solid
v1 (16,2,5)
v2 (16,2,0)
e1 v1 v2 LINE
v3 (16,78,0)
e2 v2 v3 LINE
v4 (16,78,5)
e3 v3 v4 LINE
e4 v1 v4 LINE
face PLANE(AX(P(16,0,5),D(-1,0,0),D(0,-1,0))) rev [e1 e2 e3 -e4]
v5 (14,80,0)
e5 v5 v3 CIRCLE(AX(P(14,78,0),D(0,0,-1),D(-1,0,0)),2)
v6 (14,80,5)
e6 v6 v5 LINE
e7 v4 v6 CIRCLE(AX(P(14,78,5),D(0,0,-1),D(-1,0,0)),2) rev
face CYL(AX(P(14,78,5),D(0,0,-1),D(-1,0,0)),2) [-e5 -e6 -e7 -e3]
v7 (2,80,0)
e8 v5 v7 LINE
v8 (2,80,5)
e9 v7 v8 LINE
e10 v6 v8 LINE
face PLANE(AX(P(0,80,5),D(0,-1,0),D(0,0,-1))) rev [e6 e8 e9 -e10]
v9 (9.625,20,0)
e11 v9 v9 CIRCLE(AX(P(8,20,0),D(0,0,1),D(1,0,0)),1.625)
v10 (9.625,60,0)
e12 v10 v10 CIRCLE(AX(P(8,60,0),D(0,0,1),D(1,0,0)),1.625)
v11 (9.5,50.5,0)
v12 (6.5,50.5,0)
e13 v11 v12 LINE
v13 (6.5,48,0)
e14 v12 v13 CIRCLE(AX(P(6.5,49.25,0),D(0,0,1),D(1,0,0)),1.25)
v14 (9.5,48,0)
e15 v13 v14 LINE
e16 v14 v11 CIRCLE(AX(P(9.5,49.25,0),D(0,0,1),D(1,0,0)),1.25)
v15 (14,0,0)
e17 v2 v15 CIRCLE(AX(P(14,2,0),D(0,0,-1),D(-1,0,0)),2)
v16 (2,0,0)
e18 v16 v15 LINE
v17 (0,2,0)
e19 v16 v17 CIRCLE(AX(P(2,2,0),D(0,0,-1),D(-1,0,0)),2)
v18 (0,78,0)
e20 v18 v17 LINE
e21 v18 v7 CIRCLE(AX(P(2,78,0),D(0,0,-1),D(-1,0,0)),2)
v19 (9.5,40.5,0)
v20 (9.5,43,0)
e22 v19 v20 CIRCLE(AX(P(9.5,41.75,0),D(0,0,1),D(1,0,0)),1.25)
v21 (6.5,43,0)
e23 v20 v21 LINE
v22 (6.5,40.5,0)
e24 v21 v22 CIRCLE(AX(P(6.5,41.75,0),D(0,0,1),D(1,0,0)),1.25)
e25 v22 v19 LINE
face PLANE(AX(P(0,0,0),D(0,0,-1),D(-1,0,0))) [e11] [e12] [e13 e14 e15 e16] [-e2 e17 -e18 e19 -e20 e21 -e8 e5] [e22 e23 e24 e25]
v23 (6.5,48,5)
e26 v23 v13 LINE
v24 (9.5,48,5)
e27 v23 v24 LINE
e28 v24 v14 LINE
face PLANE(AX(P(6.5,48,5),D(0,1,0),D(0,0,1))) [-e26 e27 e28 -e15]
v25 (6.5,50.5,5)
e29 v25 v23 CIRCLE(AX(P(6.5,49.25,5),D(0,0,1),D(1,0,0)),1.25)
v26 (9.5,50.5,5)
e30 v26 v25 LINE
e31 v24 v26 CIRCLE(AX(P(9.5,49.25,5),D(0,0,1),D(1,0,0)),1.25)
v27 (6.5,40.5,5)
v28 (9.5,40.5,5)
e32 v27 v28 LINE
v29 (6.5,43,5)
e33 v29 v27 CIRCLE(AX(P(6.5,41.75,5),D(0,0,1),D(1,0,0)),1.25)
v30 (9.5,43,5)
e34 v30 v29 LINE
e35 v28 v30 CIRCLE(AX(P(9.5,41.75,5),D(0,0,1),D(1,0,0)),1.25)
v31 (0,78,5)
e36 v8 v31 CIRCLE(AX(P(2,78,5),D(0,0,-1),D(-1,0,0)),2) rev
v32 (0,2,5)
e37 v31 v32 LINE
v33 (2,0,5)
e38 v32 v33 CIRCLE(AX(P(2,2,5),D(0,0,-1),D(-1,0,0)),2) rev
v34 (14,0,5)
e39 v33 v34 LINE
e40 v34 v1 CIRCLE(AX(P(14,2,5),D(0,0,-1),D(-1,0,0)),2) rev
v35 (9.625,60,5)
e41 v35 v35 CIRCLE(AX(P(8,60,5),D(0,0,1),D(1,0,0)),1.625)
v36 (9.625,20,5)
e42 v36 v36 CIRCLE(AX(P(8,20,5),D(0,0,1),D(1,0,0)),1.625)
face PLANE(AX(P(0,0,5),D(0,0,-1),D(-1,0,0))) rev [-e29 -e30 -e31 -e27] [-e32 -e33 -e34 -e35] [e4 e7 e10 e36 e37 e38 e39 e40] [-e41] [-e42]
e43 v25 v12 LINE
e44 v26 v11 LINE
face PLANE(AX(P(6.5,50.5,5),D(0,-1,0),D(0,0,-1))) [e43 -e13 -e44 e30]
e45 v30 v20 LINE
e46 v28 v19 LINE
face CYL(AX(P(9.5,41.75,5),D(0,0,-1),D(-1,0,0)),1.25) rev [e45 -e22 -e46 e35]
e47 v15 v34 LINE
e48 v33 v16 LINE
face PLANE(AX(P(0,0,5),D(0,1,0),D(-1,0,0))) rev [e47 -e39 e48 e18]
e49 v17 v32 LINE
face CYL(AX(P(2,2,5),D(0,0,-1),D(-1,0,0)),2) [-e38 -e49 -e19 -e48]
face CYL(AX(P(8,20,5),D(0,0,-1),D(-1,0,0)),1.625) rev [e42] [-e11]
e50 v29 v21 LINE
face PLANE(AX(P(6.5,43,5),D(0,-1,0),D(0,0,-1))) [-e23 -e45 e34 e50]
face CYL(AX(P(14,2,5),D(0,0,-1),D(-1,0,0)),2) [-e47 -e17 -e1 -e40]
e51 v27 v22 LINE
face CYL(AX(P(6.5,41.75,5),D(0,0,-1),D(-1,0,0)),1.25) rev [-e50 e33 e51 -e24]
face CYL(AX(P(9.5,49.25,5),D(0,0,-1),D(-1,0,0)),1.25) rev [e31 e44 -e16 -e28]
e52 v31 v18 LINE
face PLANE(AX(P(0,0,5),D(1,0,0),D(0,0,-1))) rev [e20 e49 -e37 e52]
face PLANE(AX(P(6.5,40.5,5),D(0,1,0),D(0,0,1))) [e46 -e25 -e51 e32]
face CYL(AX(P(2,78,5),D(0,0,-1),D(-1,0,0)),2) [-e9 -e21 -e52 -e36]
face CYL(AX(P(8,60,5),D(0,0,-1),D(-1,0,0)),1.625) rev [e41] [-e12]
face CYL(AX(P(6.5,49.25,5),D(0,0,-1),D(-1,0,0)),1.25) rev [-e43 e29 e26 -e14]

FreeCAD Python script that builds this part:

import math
import FreeCAD as App
import Part
import Sketcher
from FreeCAD import Vector


def edges_at(feature, points):
    """Names of the edges that pass closest to the given points."""
    edges = feature.Shape.Edges
    near = lambda p: min(range(len(edges)), key=lambda i: edges[i].distToShape(Part.Vertex(*p))[0])
    return sorted({f"Edge{near(p) + 1}" for p in points})

doc = App.newDocument("Part")
params = doc.addObject("Spreadsheet::Sheet", "Params")
for row, (alias, value) in enumerate([
    ("sketch1_diameter", "3.25 mm"),
    ("sketch1_width", "16 mm"),
    ("sketch1_width2", "3 mm"),
    ("sketch1_height", "80 mm"),
    ("sketch1_radius", "1.25 mm"),
    ("pad1_length", "5 mm"),
    ("fillet_radius", "2 mm"),
], start=1):
    params.set(f"A{row}", alias)
    params.set(f"B{row}", "=" + value)
    params.setAlias(f"B{row}", alias)

body = doc.addObject("PartDesign::Body", "Body")

# Sketch on XY plane
sketch1 = doc.addObject("Sketcher::SketchObject", "Sketch")
body.addObject(sketch1)
sketch1.AttachmentSupport = (doc.XY_Plane, [""])
sketch1.MapMode = "FlatFace"
sketch1.addGeometry(Part.LineSegment(Vector(0, 80, 0), Vector(0, 0, 0)), False)
sketch1.addGeometry(Part.LineSegment(Vector(0, 0, 0), Vector(16, 0, 0)), False)
sketch1.addGeometry(Part.LineSegment(Vector(16, 0, 0), Vector(16, 80, 0)), False)
sketch1.addGeometry(Part.LineSegment(Vector(16, 80, 0), Vector(0, 80, 0)), False)
sketch1.addGeometry(Part.Circle(Vector(8, 20, 0), Vector(0, 0, 1), 1.625), False)
sketch1.addGeometry(Part.ArcOfCircle(Part.Circle(Vector(6.5, 41.75, 0), Vector(0, 0, 1), 1.25), math.radians(90), math.radians(270)), False)
sketch1.addGeometry(Part.LineSegment(Vector(6.5, 43, 0), Vector(9.5, 43, 0)), False)
sketch1.addGeometry(Part.ArcOfCircle(Part.Circle(Vector(9.5, 41.75, 0), Vector(0, 0, 1), 1.25), math.radians(-90), math.radians(90)), False)
sketch1.addGeometry(Part.LineSegment(Vector(9.5, 40.5, 0), Vector(6.5, 40.5, 0)), False)
sketch1.addGeometry(Part.ArcOfCircle(Part.Circle(Vector(6.5, 49.25, 0), Vector(0, 0, 1), 1.25), math.radians(90), math.radians(270)), False)
sketch1.addGeometry(Part.LineSegment(Vector(6.5, 50.5, 0), Vector(9.5, 50.5, 0)), False)
sketch1.addGeometry(Part.ArcOfCircle(Part.Circle(Vector(9.5, 49.25, 0), Vector(0, 0, 1), 1.25), math.radians(-90), math.radians(90)), False)
sketch1.addGeometry(Part.LineSegment(Vector(9.5, 48, 0), Vector(6.5, 48, 0)), False)
sketch1.addGeometry(Part.Circle(Vector(8, 60, 0), Vector(0, 0, 1), 1.625), False)
sketch1.addConstraint(Sketcher.Constraint("Coincident", 0, 2, 1, 1))
sketch1.addConstraint(Sketcher.Constraint("Coincident", 1, 2, 2, 1))
sketch1.addConstraint(Sketcher.Constraint("Coincident", 2, 2, 3, 1))
sketch1.addConstraint(Sketcher.Constraint("Coincident", 3, 2, 0, 1))
sketch1.addConstraint(Sketcher.Constraint("Tangent", 5, 1, 6, 1))
sketch1.addConstraint(Sketcher.Constraint("Tangent", 6, 2, 7, 2))
sketch1.addConstraint(Sketcher.Constraint("Tangent", 7, 1, 8, 1))
sketch1.addConstraint(Sketcher.Constraint("Tangent", 8, 2, 5, 2))
sketch1.addConstraint(Sketcher.Constraint("Tangent", 9, 1, 10, 1))
sketch1.addConstraint(Sketcher.Constraint("Tangent", 10, 2, 11, 2))
sketch1.addConstraint(Sketcher.Constraint("Tangent", 11, 1, 12, 1))
sketch1.addConstraint(Sketcher.Constraint("Tangent", 12, 2, 9, 2))
sketch1.addConstraint(Sketcher.Constraint("Vertical", 0))
sketch1.addConstraint(Sketcher.Constraint("Horizontal", 1))
sketch1.addConstraint(Sketcher.Constraint("Vertical", 2))
sketch1.addConstraint(Sketcher.Constraint("Horizontal", 3))
sketch1.addConstraint(Sketcher.Constraint("Horizontal", 6))
sketch1.addConstraint(Sketcher.Constraint("Horizontal", 8))
sketch1.addConstraint(Sketcher.Constraint("Horizontal", 10))
sketch1.addConstraint(Sketcher.Constraint("Horizontal", 12))
sketch1.addConstraint(Sketcher.Constraint("Coincident", 0, 2, -1, 1))
sketch1.addConstraint(Sketcher.Constraint("Equal", 7, 9))
sketch1.addConstraint(Sketcher.Constraint("Equal", 4, 13))
sketch1.addConstraint(Sketcher.Constraint("Vertical", 5, 3, 9, 3))
sketch1.addConstraint(Sketcher.Constraint("Vertical", 7, 3, 11, 3))
sketch1.addConstraint(Sketcher.Constraint("Vertical", 4, 3, 13, 3))
sketch1.addConstraint(Sketcher.Constraint("Diameter", 4, 3.25))
sketch1.addConstraint(Sketcher.Constraint("DistanceX", 1, 1, 1, 2, 16.0))
sketch1.addConstraint(Sketcher.Constraint("DistanceX", 6, 1, 6, 2, 3.0))
sketch1.addConstraint(Sketcher.Constraint("DistanceY", 0, 2, 0, 1, 80.0))
sketch1.addConstraint(Sketcher.Constraint("Radius", 5, 1.25))
sketch1.addConstraint(Sketcher.Constraint("DistanceX", -1, 1, 4, 3, 8.0))
sketch1.addConstraint(Sketcher.Constraint("DistanceY", -1, 1, 4, 3, 20.0))
sketch1.addConstraint(Sketcher.Constraint("DistanceY", -1, 1, 13, 3, 60.0))
sketch1.addConstraint(Sketcher.Constraint("DistanceY", -1, 1, 5, 1, 43.0))
sketch1.addConstraint(Sketcher.Constraint("DistanceY", -1, 1, 11, 1, 48.0))
sketch1.addConstraint(Sketcher.Constraint("DistanceX", -1, 1, 5, 3, 6.5))
sketch1.setExpression("Constraints[26]", "Params.sketch1_diameter")
sketch1.setExpression("Constraints[27]", "Params.sketch1_width")
sketch1.setExpression("Constraints[28]", "Params.sketch1_width2")
sketch1.setExpression("Constraints[29]", "Params.sketch1_height")
sketch1.setExpression("Constraints[30]", "Params.sketch1_radius")
pad1 = doc.addObject("PartDesign::Pad", "Pad")
body.addObject(pad1)
pad1.Profile = sketch1
pad1.setExpression("Length", "Params.pad1_length")
doc.recompute()

fillet = doc.addObject("PartDesign::Fillet", "Fillet")
body.addObject(fillet)
fillet.Base = (pad1, edges_at(pad1, [
    (0, 80, 2.5),
    (16, 80, 2.5),
    (16, 0, 2.5),
    (0, 0, 2.5),
]))
fillet.setExpression("Radius", "Params.fillet_radius")

doc.recompute()
